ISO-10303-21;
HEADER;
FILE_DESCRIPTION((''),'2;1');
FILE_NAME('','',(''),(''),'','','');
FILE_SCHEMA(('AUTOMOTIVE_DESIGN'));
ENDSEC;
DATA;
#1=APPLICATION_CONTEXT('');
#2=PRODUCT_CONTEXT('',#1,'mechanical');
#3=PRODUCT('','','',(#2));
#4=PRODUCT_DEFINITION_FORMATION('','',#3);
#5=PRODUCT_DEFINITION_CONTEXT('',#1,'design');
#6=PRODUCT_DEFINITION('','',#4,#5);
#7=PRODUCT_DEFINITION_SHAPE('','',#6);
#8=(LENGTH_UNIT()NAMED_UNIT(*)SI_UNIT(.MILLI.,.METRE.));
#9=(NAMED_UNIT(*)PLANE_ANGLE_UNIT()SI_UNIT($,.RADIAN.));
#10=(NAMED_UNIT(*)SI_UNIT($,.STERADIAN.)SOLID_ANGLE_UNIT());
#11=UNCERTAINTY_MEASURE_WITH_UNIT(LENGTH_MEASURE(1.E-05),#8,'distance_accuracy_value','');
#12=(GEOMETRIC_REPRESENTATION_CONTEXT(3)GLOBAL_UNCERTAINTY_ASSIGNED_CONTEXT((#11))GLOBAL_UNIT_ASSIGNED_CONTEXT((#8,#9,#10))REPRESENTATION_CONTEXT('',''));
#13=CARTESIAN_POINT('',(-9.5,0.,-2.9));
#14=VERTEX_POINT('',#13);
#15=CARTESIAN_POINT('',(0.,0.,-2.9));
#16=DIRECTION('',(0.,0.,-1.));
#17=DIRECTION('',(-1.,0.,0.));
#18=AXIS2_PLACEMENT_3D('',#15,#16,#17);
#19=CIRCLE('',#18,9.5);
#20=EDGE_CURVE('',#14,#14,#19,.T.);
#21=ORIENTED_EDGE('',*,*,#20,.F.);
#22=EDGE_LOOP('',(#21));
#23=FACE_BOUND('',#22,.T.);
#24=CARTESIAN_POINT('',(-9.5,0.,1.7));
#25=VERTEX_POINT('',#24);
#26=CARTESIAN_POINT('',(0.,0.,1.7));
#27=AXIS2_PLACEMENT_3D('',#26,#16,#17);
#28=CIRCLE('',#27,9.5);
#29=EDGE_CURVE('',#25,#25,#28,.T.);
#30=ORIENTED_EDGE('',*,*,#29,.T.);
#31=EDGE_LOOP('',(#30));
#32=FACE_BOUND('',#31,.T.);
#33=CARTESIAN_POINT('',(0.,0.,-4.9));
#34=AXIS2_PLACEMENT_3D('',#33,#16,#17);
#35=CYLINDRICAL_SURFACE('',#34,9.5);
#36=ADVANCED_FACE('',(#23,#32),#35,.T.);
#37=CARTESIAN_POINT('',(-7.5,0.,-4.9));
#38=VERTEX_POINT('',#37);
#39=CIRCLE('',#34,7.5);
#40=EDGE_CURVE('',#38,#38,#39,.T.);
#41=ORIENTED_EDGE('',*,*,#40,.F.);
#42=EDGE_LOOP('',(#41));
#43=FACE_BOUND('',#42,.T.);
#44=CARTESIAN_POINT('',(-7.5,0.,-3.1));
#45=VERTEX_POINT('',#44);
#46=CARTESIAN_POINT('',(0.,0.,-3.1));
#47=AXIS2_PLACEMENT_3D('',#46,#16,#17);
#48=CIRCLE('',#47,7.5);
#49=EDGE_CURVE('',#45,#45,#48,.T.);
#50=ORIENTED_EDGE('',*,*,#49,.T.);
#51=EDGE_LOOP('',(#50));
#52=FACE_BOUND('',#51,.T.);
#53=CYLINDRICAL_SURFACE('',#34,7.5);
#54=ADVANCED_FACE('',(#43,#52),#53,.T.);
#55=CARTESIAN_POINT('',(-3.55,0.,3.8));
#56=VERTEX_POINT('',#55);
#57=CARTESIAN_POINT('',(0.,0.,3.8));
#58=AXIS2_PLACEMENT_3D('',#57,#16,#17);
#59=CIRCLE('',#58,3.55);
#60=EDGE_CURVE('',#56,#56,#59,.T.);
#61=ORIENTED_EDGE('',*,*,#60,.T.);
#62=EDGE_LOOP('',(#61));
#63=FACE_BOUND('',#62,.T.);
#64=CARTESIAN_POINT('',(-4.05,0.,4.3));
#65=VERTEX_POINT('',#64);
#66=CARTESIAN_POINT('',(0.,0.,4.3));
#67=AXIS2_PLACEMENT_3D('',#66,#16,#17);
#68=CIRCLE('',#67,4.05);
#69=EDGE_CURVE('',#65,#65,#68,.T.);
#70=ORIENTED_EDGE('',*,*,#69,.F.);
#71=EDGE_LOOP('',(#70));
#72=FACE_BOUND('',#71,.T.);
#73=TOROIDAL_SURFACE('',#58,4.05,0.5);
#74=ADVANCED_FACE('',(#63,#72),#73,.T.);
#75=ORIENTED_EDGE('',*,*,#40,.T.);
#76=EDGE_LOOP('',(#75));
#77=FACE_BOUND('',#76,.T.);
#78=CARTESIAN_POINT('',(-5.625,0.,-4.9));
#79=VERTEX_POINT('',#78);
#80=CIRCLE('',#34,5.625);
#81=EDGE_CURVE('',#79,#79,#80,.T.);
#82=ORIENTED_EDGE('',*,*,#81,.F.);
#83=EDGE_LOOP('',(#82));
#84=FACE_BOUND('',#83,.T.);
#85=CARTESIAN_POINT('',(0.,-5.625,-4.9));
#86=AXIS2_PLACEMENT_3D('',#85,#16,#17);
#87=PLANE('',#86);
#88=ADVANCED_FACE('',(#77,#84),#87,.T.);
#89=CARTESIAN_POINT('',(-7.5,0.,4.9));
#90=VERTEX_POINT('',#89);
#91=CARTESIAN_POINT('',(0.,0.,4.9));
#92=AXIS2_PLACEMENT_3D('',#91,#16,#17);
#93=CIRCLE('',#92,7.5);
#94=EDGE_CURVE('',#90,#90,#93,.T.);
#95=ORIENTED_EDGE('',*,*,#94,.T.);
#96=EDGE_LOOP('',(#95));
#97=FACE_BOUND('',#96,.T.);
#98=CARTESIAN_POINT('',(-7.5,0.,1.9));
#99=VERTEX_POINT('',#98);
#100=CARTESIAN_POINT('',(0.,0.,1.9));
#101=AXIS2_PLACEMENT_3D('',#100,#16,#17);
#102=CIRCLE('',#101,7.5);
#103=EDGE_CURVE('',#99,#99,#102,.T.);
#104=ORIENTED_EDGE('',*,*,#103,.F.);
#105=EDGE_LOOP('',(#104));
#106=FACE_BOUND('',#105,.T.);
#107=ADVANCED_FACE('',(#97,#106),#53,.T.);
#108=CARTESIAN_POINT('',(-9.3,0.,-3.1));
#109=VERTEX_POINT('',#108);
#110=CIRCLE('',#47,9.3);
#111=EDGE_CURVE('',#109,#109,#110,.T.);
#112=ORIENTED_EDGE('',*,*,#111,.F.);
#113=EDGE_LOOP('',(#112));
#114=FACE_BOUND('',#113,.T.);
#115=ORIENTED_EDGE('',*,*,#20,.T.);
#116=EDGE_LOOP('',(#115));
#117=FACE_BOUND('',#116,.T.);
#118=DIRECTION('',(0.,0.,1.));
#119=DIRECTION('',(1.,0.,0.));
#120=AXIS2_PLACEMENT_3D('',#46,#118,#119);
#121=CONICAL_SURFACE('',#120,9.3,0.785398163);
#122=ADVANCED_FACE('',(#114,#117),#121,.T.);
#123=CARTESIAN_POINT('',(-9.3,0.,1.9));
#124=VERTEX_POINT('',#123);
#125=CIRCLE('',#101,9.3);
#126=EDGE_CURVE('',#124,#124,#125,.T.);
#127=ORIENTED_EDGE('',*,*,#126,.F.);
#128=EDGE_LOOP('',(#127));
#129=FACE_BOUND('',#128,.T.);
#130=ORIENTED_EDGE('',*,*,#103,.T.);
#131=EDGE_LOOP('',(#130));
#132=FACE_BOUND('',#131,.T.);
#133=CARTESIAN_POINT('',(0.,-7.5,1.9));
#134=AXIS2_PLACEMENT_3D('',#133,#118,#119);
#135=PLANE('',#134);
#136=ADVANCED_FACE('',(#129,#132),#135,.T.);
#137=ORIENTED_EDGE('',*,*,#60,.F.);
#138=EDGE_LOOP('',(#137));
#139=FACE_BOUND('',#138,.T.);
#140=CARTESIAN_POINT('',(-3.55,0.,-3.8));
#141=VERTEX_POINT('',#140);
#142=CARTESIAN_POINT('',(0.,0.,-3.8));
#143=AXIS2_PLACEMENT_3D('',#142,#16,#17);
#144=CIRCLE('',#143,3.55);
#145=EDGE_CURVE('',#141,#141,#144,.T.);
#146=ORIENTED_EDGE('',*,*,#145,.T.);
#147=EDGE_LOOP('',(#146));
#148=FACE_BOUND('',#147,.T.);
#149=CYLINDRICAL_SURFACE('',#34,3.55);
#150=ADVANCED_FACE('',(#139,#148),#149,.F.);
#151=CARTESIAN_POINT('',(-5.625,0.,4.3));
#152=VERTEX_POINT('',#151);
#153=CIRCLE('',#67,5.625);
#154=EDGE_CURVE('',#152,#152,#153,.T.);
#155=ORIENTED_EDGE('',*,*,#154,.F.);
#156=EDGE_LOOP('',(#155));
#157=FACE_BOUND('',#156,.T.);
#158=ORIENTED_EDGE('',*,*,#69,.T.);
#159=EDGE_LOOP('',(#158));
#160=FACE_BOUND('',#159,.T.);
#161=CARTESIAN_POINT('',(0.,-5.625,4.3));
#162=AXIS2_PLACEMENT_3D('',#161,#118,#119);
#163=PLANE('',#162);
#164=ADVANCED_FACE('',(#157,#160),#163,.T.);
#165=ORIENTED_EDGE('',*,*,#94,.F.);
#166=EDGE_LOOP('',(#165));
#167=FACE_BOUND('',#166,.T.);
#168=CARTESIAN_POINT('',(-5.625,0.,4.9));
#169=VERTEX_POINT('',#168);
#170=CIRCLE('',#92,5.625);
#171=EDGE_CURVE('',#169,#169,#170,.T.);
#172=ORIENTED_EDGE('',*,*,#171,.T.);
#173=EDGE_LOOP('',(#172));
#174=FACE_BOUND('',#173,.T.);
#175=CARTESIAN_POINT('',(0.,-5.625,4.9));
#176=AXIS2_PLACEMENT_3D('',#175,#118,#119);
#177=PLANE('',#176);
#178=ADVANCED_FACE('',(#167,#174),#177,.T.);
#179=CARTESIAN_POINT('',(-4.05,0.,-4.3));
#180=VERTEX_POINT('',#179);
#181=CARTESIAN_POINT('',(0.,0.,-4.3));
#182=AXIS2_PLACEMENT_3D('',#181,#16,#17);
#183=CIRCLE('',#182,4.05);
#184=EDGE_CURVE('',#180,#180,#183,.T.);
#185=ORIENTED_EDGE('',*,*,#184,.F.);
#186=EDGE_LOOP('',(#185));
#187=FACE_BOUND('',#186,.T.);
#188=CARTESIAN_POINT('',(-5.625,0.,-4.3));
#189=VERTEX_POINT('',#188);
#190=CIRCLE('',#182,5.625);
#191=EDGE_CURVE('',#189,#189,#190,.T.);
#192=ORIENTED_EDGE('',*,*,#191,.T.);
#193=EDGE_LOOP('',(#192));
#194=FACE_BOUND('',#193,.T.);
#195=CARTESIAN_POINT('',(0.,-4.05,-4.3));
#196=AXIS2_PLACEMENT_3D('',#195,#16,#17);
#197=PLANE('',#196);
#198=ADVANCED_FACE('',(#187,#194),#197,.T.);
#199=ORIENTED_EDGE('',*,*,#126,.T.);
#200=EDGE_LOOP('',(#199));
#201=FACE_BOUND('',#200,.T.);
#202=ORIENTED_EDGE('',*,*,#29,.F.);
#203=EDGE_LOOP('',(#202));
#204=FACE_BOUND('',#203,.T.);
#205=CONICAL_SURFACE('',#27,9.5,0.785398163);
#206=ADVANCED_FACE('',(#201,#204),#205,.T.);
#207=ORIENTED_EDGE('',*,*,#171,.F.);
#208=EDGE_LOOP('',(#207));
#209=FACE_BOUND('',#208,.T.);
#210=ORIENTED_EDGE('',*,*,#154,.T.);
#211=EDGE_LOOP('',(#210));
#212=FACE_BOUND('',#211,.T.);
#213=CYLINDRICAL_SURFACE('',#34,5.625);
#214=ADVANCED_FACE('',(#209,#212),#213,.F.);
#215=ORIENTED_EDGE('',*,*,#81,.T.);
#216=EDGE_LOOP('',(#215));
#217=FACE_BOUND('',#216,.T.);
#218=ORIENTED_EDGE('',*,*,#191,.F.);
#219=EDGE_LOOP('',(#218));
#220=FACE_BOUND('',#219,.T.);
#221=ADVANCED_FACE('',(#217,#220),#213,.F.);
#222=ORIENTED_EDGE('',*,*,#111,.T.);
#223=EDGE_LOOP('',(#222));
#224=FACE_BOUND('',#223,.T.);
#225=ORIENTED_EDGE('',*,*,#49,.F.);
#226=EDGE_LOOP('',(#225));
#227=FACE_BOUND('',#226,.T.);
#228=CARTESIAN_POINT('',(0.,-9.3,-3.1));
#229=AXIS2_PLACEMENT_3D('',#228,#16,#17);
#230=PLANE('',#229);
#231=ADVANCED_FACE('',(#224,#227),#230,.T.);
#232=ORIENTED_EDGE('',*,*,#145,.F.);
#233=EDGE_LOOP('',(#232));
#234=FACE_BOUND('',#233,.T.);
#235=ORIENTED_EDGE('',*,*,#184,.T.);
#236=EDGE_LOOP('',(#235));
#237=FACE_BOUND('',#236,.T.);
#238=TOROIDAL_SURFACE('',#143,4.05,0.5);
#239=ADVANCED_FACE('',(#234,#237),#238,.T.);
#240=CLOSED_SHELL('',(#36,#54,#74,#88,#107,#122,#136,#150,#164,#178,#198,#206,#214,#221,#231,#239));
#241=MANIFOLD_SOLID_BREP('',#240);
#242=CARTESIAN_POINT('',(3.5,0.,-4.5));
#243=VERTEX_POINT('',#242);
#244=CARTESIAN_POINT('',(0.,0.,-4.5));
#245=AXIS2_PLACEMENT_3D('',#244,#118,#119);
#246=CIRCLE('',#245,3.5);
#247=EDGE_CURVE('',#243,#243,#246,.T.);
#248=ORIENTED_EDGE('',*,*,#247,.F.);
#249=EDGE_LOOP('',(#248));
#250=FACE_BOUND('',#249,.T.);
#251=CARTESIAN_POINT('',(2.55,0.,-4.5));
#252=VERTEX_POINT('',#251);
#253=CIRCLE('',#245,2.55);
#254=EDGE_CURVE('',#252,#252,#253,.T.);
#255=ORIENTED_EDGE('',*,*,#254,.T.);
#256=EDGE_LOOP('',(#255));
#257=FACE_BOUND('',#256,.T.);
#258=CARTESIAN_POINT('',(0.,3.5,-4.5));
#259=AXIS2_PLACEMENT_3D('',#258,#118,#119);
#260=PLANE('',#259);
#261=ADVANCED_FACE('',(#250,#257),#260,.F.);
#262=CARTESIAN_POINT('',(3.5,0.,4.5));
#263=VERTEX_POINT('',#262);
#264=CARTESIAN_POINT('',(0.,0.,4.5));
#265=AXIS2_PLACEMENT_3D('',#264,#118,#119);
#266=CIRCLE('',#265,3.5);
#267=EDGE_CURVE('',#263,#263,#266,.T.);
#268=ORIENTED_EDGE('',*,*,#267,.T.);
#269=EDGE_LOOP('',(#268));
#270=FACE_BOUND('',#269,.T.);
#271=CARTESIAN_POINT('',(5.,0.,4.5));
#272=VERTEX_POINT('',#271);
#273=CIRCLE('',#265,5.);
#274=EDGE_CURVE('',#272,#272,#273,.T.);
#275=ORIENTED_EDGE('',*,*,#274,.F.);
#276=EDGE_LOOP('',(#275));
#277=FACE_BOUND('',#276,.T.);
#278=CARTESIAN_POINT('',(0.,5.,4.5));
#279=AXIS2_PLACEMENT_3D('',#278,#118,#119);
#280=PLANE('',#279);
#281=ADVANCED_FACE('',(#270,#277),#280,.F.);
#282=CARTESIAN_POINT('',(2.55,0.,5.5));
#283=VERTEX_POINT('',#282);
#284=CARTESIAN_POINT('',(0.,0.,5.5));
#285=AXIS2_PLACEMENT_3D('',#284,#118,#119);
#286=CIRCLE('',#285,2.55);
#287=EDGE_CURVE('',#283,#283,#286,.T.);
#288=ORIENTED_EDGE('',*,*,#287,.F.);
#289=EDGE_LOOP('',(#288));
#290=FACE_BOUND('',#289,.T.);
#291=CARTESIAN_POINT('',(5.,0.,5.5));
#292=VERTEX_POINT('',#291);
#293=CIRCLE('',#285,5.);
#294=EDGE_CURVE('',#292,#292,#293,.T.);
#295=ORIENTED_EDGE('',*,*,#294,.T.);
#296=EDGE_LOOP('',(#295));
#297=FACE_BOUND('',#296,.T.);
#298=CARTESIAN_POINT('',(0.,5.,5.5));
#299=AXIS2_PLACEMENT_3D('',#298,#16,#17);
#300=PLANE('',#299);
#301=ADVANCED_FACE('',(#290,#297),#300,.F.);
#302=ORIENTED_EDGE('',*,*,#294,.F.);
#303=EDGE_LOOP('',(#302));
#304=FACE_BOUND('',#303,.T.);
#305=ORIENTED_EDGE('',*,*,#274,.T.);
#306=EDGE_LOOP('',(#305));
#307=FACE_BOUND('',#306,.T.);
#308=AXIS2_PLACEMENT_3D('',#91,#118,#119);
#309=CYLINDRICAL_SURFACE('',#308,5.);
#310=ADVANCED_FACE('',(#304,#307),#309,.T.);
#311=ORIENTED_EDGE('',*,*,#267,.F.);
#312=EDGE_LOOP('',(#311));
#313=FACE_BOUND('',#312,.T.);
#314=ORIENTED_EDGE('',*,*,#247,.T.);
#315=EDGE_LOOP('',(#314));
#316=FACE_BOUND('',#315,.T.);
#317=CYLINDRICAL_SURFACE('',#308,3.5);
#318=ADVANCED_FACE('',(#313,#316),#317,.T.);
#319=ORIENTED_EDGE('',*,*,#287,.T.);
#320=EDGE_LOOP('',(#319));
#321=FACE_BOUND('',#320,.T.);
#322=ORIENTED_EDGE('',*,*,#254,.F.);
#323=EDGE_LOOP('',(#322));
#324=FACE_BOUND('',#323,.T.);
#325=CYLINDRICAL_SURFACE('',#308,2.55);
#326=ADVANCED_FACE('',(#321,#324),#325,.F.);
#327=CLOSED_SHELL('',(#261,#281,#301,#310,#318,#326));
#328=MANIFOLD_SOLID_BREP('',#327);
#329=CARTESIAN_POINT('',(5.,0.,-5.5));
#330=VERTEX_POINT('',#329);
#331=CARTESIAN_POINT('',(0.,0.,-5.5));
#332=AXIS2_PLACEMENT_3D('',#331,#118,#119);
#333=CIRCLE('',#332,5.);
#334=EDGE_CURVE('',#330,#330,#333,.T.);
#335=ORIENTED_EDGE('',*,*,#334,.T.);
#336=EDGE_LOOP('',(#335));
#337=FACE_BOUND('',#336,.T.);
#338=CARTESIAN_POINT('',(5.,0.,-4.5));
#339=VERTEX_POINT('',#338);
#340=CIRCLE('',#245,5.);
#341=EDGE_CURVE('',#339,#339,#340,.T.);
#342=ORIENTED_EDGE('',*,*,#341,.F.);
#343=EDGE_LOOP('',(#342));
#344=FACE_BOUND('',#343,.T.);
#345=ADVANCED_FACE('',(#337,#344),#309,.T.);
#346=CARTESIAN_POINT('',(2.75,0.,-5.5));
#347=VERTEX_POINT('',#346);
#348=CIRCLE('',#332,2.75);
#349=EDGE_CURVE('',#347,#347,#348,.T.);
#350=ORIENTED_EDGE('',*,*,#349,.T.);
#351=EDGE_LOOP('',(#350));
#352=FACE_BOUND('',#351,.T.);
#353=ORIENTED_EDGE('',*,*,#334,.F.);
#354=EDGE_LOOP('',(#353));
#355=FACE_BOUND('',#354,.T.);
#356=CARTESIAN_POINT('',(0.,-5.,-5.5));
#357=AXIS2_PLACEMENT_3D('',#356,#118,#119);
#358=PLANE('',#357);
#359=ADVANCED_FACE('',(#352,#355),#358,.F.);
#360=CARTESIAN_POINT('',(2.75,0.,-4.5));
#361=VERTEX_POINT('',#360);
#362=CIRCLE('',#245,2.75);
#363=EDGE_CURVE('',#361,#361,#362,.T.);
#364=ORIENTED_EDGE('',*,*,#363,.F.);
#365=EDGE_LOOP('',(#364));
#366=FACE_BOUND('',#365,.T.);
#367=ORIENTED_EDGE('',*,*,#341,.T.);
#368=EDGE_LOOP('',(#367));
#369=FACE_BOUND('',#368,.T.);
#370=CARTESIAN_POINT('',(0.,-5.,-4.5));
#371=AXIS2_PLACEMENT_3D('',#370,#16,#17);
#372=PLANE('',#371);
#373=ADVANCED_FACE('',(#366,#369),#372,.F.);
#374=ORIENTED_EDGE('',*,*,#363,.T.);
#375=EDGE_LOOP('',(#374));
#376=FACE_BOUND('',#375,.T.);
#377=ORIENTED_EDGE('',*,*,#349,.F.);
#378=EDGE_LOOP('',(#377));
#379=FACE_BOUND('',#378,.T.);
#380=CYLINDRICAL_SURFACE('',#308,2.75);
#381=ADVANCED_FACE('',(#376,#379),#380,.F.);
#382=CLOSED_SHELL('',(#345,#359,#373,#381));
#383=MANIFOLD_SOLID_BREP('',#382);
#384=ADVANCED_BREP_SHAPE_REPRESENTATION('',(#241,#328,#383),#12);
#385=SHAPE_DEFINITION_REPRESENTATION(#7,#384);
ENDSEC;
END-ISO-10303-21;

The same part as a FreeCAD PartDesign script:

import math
import FreeCAD as App
import Part
import Sketcher
Q = App.Units.Quantity

doc = App.newDocument("Part")
params = doc.addObject("Spreadsheet::Sheet", "Params")
for row, (alias, value) in enumerate([
    ("sketch1_radius", "0.5 mm"),
    ("sketch1_height", "3 mm"),
    ("sketch1_width", "1.8 mm"),
    ("sketch1_height2", "7.6 mm"),
    ("sketch1_height3", "0.6 mm"),
    ("revolution_angle", "360 deg"),
    ("sketch2_height", "1 mm"),
    ("sketch2_height2", "10 mm"),
    ("sketch2_width", "1.5 mm"),
    ("sketch2_width2", "2.45 mm"),
    ("revolution2_angle", "360 deg"),
    ("sketch3_height", "1 mm"),
    ("sketch3_width", "2.25 mm"),
    ("revolution3_angle", "360 deg"),
], start=1):
    params.set(f"A{row}", alias)
    params.set(f"B{row}", "=" + value)
    params.setAlias(f"B{row}", alias)

body = doc.addObject("PartDesign::Body", "Body")

sketch1 = body.newObject("Sketcher::SketchObject", "Sketch")
sketch1.AttachmentSupport = (doc.getObject("YZ_Plane"), [""])
sketch1.MapMode = "FlatFace"
sketch1.addGeometry([
    Part.LineSegment(App.Vector(3.55, 3.8, 0), App.Vector(3.55, -3.8, 0)),
    Part.ArcOfCircle(Part.Circle(App.Vector(4.05, -3.8, 0), App.Vector(0, 0, 1), 0.5), math.radians(180), math.radians(270)),
    Part.LineSegment(App.Vector(4.05, -4.3, 0), App.Vector(5.625, -4.3, 0)),
    Part.LineSegment(App.Vector(5.625, -4.3, 0), App.Vector(5.625, -4.9, 0)),
    Part.LineSegment(App.Vector(5.625, -4.9, 0), App.Vector(7.5, -4.9, 0)),
    Part.LineSegment(App.Vector(7.5, -4.9, 0), App.Vector(7.5, -3.1, 0)),
    Part.LineSegment(App.Vector(7.5, -3.1, 0), App.Vector(9.3, -3.1, 0)),
    Part.LineSegment(App.Vector(9.3, -3.1, 0), App.Vector(9.5, -2.9, 0)),
    Part.LineSegment(App.Vector(9.5, -2.9, 0), App.Vector(9.5, 1.7, 0)),
    Part.LineSegment(App.Vector(9.5, 1.7, 0), App.Vector(9.3, 1.9, 0)),
    Part.LineSegment(App.Vector(9.3, 1.9, 0), App.Vector(7.5, 1.9, 0)),
    Part.LineSegment(App.Vector(7.5, 1.9, 0), App.Vector(7.5, 4.9, 0)),
    Part.LineSegment(App.Vector(7.5, 4.9, 0), App.Vector(5.625, 4.9, 0)),
    Part.LineSegment(App.Vector(5.625, 4.9, 0), App.Vector(5.625, 4.3, 0)),
    Part.LineSegment(App.Vector(5.625, 4.3, 0), App.Vector(4.05, 4.3, 0)),
    Part.ArcOfCircle(Part.Circle(App.Vector(4.05, 3.8, 0), App.Vector(0, 0, 1), 0.5), math.radians(90), math.radians(180)),
], False)
sketch1.addConstraint([
    Sketcher.Constraint("Tangent", 0, 2, 1, 1),
    Sketcher.Constraint("Tangent", 1, 2, 2, 1),
    Sketcher.Constraint("Coincident", 2, 2, 3, 1),
    Sketcher.Constraint("Coincident", 3, 2, 4, 1),
    Sketcher.Constraint("Coincident", 4, 2, 5, 1),
    Sketcher.Constraint("Coincident", 5, 2, 6, 1),
    Sketcher.Constraint("Coincident", 6, 2, 7, 1),
    Sketcher.Constraint("Coincident", 7, 2, 8, 1),
    Sketcher.Constraint("Coincident", 8, 2, 9, 1),
    Sketcher.Constraint("Coincident", 9, 2, 10, 1),
    Sketcher.Constraint("Coincident", 10, 2, 11, 1),
    Sketcher.Constraint("Coincident", 11, 2, 12, 1),
    Sketcher.Constraint("Coincident", 12, 2, 13, 1),
    Sketcher.Constraint("Coincident", 13, 2, 14, 1),
    Sketcher.Constraint("Tangent", 14, 2, 15, 1),
    Sketcher.Constraint("Tangent", 15, 2, 0, 1),
    Sketcher.Constraint("Vertical", 0),
    Sketcher.Constraint("Horizontal", 2),
    Sketcher.Constraint("Vertical", 3),
    Sketcher.Constraint("Horizontal", 4),
    Sketcher.Constraint("Vertical", 5),
    Sketcher.Constraint("Horizontal", 6),
    Sketcher.Constraint("Vertical", 8),
    Sketcher.Constraint("Horizontal", 10),
    Sketcher.Constraint("Vertical", 11),
    Sketcher.Constraint("Horizontal", 12),
    Sketcher.Constraint("Vertical", 13),
    Sketcher.Constraint("Horizontal", 14),
    Sketcher.Constraint("Equal", 1, 15),
    Sketcher.Constraint("Symmetric", 4, 2, 11, 2, -1),
    Sketcher.Constraint("Symmetric", 2, 2, 13, 2, -1),
    Sketcher.Constraint("Perpendicular", 7, 9),
    Sketcher.Constraint("Vertical", 6, 2, 9, 2),
    Sketcher.Constraint("Equal", 10, 5),
    Sketcher.Constraint("Equal", 7, 9),
    Sketcher.Constraint("Radius", 1, Q("0.5 mm")),
    Sketcher.Constraint("DistanceY", 11, 1, 11, 2, Q("3 mm")),
    Sketcher.Constraint("DistanceX", 6, 1, 6, 2, Q("1.8 mm")),
    Sketcher.Constraint("DistanceY", 0, 2, 0, 1, Q("7.6 mm")),
    Sketcher.Constraint("DistanceY", 3, 2, 3, 1, Q("0.6 mm")),
    Sketcher.Constraint("DistanceY", 8, 1, 8, 2, Q("4.6 mm")),
    Sketcher.Constraint("DistanceX", -1, 1, 4, 2, Q("7.5 mm")),
    Sketcher.Constraint("DistanceX", 2, 1, 2, 2, Q("1.575 mm")),
    Sketcher.Constraint("DistanceX", 4, 1, 4, 2, Q("1.875 mm")),
])
sketch1.setExpression("Constraints[35]", "Params.sketch1_radius")
sketch1.setExpression("Constraints[36]", "Params.sketch1_height")
sketch1.setExpression("Constraints[37]", "Params.sketch1_width")
sketch1.setExpression("Constraints[38]", "Params.sketch1_height2")
sketch1.setExpression("Constraints[39]", "Params.sketch1_height3")
revolution = body.newObject("PartDesign::Revolution", "Revolution")
revolution.Profile = sketch1
revolution.ReferenceAxis = (sketch1, ["V_Axis"])
revolution.setExpression("Angle", "Params.revolution_angle")
body2 = doc.addObject("PartDesign::Body", "Body001")

sketch2 = body2.newObject("Sketcher::SketchObject", "Sketch001")
sketch2.AttachmentSupport = (doc.getObject("YZ_Plane001"), [""])
sketch2.MapMode = "FlatFace"
sketch2.addGeometry([
    Part.LineSegment(App.Vector(5, 4.5, 0), App.Vector(5, 5.5, 0)),
    Part.LineSegment(App.Vector(5, 5.5, 0), App.Vector(2.55, 5.5, 0)),
    Part.LineSegment(App.Vector(2.55, 5.5, 0), App.Vector(2.55, -4.5, 0)),
    Part.LineSegment(App.Vector(2.55, -4.5, 0), App.Vector(3.5, -4.5, 0)),
    Part.LineSegment(App.Vector(3.5, -4.5, 0), App.Vector(3.5, 4.5, 0)),
    Part.LineSegment(App.Vector(3.5, 4.5, 0), App.Vector(5, 4.5, 0)),
], False)
sketch2.addConstraint([
    Sketcher.Constraint("Coincident", 0, 2, 1, 1),
    Sketcher.Constraint("Coincident", 1, 2, 2, 1),
    Sketcher.Constraint("Coincident", 2, 2, 3, 1),
    Sketcher.Constraint("Coincident", 3, 2, 4, 1),
    Sketcher.Constraint("Coincident", 4, 2, 5, 1),
    Sketcher.Constraint("Coincident", 5, 2, 0, 1),
    Sketcher.Constraint("Vertical", 0),
    Sketcher.Constraint("Horizontal", 1),
    Sketcher.Constraint("Vertical", 2),
    Sketcher.Constraint("Horizontal", 3),
    Sketcher.Constraint("Vertical", 4),
    Sketcher.Constraint("Horizontal", 5),
    Sketcher.Constraint("DistanceY", 0, 1, 0, 2, Q("1 mm")),
    Sketcher.Constraint("DistanceY", 2, 2, 2, 1, Q("10 mm")),
    Sketcher.Constraint("DistanceX", 5, 1, 5, 2, Q("1.5 mm")),
    Sketcher.Constraint("DistanceX", -1, 1, 0, 2, Q("5 mm")),
    Sketcher.Constraint("DistanceX", 1, 2, 1, 1, Q("2.45 mm")),
    Sketcher.Constraint("DistanceY", -1, 1, 0, 2, Q("5.5 mm")),
])
sketch2.setExpression("Constraints[12]", "Params.sketch2_height")
sketch2.setExpression("Constraints[13]", "Params.sketch2_height2")
sketch2.setExpression("Constraints[14]", "Params.sketch2_width")
sketch2.setExpression("Constraints[16]", "Params.sketch2_width2")
revolution2 = body2.newObject("PartDesign::Revolution", "Revolution001")
revolution2.Profile = sketch2
revolution2.ReferenceAxis = (sketch2, ["V_Axis"])
revolution2.setExpression("Angle", "Params.revolution2_angle")
body3 = doc.addObject("PartDesign::Body", "Body002")

sketch3 = body3.newObject("Sketcher::SketchObject", "Sketch002")
sketch3.AttachmentSupport = (doc.getObject("YZ_Plane002"), [""])
sketch3.MapMode = "FlatFace"
sketch3.addGeometry([
    Part.LineSegment(App.Vector(5, -4.5, 0), App.Vector(2.75, -4.5, 0)),
    Part.LineSegment(App.Vector(2.75, -4.5, 0), App.Vector(2.75, -5.5, 0)),
    Part.LineSegment(App.Vector(2.75, -5.5, 0), App.Vector(5, -5.5, 0)),
    Part.LineSegment(App.Vector(5, -5.5, 0), App.Vector(5, -4.5, 0)),
], False)
sketch3.addConstraint([
    Sketcher.Constraint("Coincident", 0, 2, 1, 1),
    Sketcher.Constraint("Coincident", 1, 2, 2, 1),
    Sketcher.Constraint("Coincident", 2, 2, 3, 1),
    Sketcher.Constraint("Coincident", 3, 2, 0, 1),
    Sketcher.Constraint("Horizontal", 0),
    Sketcher.Constraint("Vertical", 1),
    Sketcher.Constraint("Horizontal", 2),
    Sketcher.Constraint("Vertical", 3),
    Sketcher.Constraint("DistanceY", 1, 2, 1, 1, Q("1 mm")),
    Sketcher.Constraint("DistanceX", -1, 1, 2, 2, Q("5 mm")),
    Sketcher.Constraint("DistanceX", 0, 2, 0, 1, Q("2.25 mm")),
    Sketcher.Constraint("DistanceY", 0, 2, -1, 1, Q("4.5 mm")),
])
sketch3.setExpression("Constraints[8]", "Params.sketch3_height")
sketch3.setExpression("Constraints[10]", "Params.sketch3_width")
revolution3 = body3.newObject("PartDesign::Revolution", "Revolution002")
revolution3.Profile = sketch3
revolution3.ReferenceAxis = (sketch3, ["V_Axis"])
revolution3.setExpression("Angle", "Params.revolution3_angle")

doc.recompute()
